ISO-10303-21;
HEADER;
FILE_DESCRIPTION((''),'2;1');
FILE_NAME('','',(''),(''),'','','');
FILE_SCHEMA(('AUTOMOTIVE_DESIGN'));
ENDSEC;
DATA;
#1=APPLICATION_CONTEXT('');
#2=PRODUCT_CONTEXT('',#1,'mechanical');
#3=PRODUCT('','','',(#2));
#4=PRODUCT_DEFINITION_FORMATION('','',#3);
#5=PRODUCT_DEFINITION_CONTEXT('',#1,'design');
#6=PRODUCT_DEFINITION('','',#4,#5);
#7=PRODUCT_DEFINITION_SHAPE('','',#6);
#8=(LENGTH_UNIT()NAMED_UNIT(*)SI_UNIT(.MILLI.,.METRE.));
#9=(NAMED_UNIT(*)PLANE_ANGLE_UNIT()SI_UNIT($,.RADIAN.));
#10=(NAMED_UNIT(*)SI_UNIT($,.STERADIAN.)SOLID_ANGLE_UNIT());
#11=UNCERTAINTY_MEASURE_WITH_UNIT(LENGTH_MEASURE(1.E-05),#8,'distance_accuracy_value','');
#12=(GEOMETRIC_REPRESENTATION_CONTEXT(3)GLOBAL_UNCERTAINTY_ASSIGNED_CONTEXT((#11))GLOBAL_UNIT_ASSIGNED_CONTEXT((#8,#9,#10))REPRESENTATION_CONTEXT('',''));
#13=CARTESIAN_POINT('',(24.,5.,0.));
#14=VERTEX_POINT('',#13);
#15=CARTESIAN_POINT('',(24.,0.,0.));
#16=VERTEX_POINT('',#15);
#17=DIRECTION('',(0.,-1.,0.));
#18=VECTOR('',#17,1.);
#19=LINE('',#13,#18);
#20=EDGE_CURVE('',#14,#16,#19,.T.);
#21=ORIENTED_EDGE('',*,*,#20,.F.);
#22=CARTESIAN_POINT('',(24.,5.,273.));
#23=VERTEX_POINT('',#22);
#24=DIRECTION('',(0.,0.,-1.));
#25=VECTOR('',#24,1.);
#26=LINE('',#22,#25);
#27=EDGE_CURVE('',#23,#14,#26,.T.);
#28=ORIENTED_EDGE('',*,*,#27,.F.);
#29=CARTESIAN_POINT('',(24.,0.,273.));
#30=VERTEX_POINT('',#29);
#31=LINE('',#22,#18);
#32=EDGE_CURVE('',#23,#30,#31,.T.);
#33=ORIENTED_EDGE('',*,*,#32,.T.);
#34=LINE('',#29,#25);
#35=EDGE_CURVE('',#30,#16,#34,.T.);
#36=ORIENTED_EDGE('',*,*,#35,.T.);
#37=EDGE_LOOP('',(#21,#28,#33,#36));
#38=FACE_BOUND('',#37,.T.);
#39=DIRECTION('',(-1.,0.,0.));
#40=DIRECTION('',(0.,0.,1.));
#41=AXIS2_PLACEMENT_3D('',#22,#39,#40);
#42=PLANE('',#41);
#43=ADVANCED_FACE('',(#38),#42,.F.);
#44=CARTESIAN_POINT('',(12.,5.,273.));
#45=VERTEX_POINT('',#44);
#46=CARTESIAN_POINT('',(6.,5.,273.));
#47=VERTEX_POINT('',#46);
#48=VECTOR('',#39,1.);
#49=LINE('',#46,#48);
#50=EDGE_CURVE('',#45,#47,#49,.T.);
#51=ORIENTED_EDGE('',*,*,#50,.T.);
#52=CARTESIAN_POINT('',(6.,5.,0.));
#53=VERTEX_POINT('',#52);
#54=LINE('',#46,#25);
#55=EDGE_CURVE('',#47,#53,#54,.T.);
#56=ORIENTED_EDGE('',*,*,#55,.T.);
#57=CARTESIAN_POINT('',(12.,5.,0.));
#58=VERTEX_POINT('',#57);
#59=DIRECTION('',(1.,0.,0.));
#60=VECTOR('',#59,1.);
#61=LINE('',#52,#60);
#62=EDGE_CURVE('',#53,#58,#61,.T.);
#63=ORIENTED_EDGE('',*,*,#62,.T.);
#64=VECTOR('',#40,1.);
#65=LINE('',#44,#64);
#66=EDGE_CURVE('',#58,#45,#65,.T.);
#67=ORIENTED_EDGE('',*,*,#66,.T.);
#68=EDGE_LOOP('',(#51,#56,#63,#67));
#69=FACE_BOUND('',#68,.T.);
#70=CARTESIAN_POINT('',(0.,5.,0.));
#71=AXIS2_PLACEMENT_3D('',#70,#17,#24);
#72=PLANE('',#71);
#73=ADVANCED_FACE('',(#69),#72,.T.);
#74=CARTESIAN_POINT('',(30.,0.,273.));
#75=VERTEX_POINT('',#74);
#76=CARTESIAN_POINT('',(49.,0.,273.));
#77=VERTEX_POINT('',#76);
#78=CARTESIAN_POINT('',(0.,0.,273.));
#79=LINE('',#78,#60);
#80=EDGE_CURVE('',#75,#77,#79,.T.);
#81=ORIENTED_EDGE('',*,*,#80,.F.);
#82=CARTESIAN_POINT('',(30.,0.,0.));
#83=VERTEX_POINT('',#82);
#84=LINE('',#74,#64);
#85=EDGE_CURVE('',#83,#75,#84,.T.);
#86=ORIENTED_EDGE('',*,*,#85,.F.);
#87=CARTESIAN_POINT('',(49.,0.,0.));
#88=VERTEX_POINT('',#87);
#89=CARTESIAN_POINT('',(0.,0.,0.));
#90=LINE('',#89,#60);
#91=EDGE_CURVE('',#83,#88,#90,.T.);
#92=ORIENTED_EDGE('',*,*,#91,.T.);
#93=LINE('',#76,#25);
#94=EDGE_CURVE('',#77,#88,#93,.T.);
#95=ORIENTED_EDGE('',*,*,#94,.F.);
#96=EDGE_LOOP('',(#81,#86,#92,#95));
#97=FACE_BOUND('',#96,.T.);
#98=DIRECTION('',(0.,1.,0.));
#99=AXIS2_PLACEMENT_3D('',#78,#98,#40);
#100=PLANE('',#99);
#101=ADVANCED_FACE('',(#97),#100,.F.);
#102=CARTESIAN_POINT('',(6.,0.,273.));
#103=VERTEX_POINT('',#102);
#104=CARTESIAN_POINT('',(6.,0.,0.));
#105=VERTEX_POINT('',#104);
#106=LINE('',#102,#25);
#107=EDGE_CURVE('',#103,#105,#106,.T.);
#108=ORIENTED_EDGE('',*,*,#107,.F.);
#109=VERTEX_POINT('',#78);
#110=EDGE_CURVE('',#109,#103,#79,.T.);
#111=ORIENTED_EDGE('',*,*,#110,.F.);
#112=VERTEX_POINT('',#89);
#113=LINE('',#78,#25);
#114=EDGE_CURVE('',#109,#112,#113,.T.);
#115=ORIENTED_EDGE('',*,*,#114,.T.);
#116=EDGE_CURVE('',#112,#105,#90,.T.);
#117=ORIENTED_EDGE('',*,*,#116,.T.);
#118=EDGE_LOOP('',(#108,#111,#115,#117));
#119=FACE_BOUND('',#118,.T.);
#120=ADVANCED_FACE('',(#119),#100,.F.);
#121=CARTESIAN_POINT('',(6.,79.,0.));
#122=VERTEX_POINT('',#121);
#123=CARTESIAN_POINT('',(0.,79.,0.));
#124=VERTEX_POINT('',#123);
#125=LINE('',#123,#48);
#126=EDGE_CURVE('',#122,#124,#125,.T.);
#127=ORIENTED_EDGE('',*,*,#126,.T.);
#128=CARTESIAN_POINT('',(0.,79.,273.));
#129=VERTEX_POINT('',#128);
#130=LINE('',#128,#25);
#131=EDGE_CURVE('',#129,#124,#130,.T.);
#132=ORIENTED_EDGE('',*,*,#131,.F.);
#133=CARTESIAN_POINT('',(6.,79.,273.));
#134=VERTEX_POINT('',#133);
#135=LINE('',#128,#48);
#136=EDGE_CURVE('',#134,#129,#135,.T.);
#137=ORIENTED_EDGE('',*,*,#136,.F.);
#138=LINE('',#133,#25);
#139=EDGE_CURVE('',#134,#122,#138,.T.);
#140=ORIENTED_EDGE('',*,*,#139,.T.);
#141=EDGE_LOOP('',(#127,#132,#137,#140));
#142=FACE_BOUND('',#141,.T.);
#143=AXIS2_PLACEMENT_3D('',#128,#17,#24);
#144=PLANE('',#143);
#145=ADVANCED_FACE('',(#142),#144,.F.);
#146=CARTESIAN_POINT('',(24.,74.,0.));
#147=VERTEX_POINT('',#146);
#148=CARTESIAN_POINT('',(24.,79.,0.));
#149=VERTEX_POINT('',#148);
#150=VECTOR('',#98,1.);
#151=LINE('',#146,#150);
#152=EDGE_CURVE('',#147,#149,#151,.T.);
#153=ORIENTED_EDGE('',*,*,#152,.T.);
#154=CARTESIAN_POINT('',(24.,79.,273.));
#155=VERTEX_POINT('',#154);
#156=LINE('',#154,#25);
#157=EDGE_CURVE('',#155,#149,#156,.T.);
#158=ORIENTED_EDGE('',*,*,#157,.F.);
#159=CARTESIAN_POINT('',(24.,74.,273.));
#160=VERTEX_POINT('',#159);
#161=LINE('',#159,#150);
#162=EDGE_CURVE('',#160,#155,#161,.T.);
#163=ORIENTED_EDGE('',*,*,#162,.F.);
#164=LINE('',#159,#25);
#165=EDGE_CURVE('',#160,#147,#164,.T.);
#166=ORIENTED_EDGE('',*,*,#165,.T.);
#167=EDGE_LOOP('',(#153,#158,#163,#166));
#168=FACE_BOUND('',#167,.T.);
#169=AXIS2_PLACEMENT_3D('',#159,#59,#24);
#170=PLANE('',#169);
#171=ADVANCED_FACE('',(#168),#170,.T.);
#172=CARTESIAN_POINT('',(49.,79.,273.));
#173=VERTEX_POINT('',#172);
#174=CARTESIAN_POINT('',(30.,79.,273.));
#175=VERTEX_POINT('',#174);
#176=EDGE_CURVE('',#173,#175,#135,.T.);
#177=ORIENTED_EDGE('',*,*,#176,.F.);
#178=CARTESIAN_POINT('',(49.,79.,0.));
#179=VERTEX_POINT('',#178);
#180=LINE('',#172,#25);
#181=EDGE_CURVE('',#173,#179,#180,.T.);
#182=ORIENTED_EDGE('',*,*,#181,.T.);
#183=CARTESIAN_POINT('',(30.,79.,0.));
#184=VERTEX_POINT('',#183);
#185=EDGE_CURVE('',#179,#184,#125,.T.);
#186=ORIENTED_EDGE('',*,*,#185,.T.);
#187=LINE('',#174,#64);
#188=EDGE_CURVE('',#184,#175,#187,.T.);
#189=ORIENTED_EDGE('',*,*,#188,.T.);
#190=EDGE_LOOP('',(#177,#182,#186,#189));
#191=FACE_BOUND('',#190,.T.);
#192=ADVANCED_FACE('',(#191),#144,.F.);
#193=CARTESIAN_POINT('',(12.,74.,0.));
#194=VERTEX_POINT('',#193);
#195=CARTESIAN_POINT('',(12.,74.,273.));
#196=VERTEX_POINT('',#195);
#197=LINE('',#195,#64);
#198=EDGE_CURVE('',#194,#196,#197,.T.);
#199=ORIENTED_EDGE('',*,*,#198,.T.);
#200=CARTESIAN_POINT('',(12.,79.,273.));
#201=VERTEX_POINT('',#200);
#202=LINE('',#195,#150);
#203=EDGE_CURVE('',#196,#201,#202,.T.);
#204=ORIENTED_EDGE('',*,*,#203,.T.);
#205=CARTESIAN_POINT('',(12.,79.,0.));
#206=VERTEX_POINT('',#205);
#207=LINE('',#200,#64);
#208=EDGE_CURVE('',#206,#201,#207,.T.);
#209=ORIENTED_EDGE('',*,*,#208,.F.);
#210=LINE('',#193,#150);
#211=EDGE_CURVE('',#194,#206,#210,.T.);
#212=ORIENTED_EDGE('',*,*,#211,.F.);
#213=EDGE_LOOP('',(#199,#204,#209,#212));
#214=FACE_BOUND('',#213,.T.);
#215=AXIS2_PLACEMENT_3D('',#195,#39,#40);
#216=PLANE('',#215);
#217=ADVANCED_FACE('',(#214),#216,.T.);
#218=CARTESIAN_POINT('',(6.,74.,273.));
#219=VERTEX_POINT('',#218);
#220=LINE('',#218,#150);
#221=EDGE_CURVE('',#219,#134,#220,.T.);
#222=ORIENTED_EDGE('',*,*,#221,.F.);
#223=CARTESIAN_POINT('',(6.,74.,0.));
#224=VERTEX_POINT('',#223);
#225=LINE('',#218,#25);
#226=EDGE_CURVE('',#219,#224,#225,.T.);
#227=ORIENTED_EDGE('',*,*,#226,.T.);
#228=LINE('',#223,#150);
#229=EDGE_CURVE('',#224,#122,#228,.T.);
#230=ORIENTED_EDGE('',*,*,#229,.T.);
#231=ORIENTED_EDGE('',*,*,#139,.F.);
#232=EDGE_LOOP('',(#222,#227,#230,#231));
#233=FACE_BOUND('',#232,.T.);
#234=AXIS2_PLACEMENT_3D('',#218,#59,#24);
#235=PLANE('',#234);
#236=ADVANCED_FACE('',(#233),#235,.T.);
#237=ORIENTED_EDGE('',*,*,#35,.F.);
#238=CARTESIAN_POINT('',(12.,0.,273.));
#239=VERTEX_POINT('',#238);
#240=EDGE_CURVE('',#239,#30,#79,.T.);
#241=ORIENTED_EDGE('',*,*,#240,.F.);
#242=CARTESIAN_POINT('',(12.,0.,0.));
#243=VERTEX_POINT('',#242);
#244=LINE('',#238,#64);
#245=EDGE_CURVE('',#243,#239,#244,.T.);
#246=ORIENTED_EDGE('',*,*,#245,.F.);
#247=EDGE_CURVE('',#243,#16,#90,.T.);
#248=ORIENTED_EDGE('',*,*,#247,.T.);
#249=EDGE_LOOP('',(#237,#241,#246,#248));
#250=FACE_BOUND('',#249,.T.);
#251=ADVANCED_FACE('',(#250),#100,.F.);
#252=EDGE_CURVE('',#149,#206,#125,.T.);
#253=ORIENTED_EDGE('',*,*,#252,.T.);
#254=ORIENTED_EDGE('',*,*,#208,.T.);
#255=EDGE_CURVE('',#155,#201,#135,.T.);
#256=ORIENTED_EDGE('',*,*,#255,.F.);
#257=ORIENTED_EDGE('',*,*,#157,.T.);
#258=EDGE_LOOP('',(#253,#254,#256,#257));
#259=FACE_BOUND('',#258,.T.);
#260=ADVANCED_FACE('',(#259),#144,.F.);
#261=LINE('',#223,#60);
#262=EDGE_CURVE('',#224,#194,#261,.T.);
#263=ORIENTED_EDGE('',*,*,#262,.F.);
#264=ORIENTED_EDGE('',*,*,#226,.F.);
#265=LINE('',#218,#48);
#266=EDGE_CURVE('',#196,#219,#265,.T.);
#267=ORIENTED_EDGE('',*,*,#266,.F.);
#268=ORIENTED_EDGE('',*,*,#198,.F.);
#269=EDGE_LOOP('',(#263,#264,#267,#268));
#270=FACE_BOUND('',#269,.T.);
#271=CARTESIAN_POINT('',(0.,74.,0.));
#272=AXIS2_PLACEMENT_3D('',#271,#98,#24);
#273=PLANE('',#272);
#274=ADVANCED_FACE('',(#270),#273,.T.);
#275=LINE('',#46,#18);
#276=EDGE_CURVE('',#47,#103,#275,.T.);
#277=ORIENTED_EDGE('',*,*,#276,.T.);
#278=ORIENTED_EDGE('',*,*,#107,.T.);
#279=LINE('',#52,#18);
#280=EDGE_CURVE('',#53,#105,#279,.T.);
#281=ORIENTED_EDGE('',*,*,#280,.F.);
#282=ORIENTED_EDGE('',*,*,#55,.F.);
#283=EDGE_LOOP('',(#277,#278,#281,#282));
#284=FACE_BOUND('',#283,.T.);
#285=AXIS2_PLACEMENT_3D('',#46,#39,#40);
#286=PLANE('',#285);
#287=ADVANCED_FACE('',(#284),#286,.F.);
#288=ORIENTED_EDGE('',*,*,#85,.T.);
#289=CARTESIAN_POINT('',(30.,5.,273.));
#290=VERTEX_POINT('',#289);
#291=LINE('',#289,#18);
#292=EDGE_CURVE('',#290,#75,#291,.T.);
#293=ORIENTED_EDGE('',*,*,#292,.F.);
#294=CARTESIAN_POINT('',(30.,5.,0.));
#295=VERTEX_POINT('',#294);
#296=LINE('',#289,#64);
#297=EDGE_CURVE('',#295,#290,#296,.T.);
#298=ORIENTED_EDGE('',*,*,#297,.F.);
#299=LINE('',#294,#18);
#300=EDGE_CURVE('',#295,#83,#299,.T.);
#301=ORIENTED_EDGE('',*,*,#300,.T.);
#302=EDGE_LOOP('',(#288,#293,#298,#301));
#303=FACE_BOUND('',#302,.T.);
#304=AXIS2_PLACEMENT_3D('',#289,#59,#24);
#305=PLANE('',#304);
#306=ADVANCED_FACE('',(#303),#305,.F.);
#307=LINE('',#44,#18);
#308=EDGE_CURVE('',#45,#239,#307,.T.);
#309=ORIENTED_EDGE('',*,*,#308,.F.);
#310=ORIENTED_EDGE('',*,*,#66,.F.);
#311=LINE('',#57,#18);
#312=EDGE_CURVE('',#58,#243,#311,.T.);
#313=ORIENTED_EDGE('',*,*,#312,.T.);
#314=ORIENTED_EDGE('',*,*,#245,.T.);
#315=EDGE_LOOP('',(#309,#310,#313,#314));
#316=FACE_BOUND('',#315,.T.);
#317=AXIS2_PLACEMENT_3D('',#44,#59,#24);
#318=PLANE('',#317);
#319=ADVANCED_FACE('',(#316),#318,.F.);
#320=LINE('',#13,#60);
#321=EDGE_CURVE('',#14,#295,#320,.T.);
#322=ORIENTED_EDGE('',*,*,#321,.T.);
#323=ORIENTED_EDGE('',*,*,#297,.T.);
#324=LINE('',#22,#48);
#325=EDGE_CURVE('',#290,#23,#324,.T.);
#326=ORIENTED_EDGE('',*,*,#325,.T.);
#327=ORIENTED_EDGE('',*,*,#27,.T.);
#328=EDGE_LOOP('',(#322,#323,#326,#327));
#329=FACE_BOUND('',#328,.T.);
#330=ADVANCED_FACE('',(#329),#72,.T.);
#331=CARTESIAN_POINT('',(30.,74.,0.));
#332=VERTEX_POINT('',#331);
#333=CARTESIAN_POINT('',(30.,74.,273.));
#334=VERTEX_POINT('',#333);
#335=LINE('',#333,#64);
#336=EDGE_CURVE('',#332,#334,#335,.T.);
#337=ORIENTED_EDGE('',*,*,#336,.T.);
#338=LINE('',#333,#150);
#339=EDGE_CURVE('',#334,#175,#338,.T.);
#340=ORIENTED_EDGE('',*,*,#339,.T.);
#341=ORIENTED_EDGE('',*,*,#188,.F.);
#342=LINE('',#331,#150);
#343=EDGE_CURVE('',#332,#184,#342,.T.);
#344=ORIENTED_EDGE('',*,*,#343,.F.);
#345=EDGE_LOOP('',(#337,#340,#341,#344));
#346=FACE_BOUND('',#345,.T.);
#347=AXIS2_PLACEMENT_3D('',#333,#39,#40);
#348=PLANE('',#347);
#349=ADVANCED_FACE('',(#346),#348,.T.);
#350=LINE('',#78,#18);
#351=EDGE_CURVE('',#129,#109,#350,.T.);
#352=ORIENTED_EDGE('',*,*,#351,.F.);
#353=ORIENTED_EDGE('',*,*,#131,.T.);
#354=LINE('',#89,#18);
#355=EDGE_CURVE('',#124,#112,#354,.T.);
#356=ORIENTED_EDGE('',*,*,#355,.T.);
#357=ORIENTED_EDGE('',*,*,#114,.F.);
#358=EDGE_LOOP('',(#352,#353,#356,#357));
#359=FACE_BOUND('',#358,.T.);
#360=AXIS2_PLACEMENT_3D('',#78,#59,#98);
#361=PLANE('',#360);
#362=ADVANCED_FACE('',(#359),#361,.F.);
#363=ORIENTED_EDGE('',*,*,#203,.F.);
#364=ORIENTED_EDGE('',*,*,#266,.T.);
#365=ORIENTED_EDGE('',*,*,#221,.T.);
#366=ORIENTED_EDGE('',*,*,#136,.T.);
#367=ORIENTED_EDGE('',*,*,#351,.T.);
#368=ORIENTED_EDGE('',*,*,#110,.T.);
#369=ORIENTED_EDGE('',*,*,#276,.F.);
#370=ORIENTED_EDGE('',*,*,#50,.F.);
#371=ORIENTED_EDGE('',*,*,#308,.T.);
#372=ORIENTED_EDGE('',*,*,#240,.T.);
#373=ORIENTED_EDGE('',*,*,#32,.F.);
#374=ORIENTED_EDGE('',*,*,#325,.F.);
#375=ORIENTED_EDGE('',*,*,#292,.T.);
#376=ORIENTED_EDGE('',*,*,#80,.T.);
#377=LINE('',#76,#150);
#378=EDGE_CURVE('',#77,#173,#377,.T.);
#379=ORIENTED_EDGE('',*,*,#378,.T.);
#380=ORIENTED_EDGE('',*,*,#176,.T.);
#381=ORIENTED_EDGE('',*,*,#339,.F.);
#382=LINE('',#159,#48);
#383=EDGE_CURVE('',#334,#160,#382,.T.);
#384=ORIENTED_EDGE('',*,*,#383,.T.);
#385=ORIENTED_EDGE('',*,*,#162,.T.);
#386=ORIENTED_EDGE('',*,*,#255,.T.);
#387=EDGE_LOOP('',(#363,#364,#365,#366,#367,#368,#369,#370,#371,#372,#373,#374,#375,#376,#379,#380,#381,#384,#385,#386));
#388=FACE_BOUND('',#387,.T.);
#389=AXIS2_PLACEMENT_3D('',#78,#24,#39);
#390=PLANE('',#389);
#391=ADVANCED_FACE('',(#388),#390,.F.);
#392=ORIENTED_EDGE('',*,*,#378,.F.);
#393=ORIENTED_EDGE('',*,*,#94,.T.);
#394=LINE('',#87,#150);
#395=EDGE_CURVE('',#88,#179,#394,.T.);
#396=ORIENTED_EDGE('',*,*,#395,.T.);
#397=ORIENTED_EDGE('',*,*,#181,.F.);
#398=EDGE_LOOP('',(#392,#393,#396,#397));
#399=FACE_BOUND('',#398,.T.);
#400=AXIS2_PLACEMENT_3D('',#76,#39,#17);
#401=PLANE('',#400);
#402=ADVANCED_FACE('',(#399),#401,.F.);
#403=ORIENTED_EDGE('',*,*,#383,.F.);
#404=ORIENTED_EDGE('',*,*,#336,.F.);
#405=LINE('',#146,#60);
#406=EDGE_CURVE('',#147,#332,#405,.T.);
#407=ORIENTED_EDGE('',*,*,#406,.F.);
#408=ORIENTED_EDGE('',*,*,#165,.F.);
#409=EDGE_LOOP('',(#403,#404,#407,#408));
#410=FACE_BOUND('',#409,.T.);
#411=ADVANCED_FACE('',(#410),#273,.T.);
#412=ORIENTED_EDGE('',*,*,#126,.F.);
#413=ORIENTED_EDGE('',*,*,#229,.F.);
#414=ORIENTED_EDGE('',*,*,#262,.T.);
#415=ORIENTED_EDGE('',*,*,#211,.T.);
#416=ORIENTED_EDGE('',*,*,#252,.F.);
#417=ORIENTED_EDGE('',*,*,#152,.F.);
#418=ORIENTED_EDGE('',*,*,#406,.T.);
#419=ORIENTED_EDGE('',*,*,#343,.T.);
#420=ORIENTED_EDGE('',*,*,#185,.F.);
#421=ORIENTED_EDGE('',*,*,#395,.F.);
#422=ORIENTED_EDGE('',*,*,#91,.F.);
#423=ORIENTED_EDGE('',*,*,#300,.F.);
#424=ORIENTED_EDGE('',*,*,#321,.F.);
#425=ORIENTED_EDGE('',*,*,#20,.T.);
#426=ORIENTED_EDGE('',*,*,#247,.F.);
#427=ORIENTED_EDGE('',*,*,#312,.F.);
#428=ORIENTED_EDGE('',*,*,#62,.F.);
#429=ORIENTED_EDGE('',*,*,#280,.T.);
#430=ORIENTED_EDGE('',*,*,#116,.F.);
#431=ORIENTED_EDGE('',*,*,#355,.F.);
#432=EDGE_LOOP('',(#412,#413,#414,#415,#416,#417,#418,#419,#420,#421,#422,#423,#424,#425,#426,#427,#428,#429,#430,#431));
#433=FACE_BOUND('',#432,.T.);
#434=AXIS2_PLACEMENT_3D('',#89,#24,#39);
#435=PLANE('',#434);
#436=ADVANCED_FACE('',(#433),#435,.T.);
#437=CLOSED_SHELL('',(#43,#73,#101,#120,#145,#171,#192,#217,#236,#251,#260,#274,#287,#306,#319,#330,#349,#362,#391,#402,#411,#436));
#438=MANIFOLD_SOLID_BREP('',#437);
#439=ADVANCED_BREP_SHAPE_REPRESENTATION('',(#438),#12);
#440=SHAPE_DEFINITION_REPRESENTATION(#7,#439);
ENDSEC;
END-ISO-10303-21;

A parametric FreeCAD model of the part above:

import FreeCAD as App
import Part
import Sketcher

V = App.Vector
Q = App.Units.Quantity


def add_polygon(sketch, points):
    """Adds a closed chain of lines whose ends are joined by coincident constraints."""
    first, n = sketch.GeometryCount, len(points)
    for a, b in zip(points, points[1:] + points[:1]):
        sketch.addGeometry(Part.LineSegment(App.Vector(*a, 0), App.Vector(*b, 0)), False)
    for i in range(n):
        sketch.addConstraint(Sketcher.Constraint("Coincident", first + i, 2, first + (i + 1) % n, 1))

doc = App.newDocument("Part")
params = doc.addObject("Spreadsheet::Sheet", "Params")
for row, (alias, value) in enumerate([
    ("sketch1_width", "49 mm"),
    ("sketch1_height", "79 mm"),
    ("pad1_length", "273 mm"),
    ("sketch2_width", "6 mm"),
    ("sketch2_height", "273 mm"),
    ("pocket1_length", "5 mm"),
], start=1):
    params.set(f"A{row}", alias)
    params.set(f"B{row}", "=" + value)
    params.setAlias(f"B{row}", alias)

body = doc.addObject("PartDesign::Body", "Body")

# Sketch on XY plane
sketch1 = body.newObject("Sketcher::SketchObject", "Sketch")
sketch1.AttachmentSupport = (doc.getObject("XY_Plane"), [""])
sketch1.MapMode = "FlatFace"
add_polygon(sketch1, [(0, 79), (0, 0), (49, 0), (49, 79)])  # lines 0-3
sketch1.addConstraint([
    Sketcher.Constraint("Vertical", 0),
    Sketcher.Constraint("Horizontal", 1),
    Sketcher.Constraint("Vertical", 2),
    Sketcher.Constraint("Horizontal", 3),
    Sketcher.Constraint("Coincident", 0, 2, -1, 1),
    Sketcher.Constraint("DistanceX", 1, 1, 1, 2, Q("49 mm")),
    Sketcher.Constraint("DistanceY", 0, 2, 0, 1, Q("79 mm")),
])
sketch1.setExpression("Constraints[9]", "Params.sketch1_width")
sketch1.setExpression("Constraints[10]", "Params.sketch1_height")
pad1 = body.newObject("PartDesign::Pad", "Pad")
pad1.Profile = sketch1
pad1.setExpression("Length", "Params.pad1_length")

# Sketch on XZ plane
sketch2 = body.newObject("Sketcher::SketchObject", "Sketch001")
sketch2.AttachmentSupport = (doc.getObject("XZ_Plane"), [""])
sketch2.MapMode = "FlatFace"
add_polygon(sketch2, [(6, 273), (6, 0), (12, 0), (12, 273)])  # lines 0-3
add_polygon(sketch2, [(24, 273), (24, 0), (30, 0), (30, 273)])  # lines 4-7
sketch2.addConstraint([
    Sketcher.Constraint("Vertical", 0),
    Sketcher.Constraint("Horizontal", 1),
    Sketcher.Constraint("Vertical", 2),
    Sketcher.Constraint("Horizontal", 3),
    Sketcher.Constraint("Vertical", 4),
    Sketcher.Constraint("Horizontal", 5),
    Sketcher.Constraint("Vertical", 6),
    Sketcher.Constraint("Horizontal", 7),
    Sketcher.Constraint("PointOnObject", 0, 2, -1),
    Sketcher.Constraint("PointOnObject", 4, 2, -1),
    Sketcher.Constraint("Horizontal", 3, 2, 6, 2),
    Sketcher.Constraint("Equal", 3, 5),
    Sketcher.Constraint("DistanceX", 1, 1, 1, 2, Q("6 mm")),
    Sketcher.Constraint("DistanceY", 0, 2, 0, 1, Q("273 mm")),
    Sketcher.Constraint("DistanceX", -1, 1, 0, 2, Q("6 mm")),
    Sketcher.Constraint("DistanceX", -1, 1, 4, 2, Q("24 mm")),
])
sketch2.setExpression("Constraints[20]", "Params.sketch2_width")
sketch2.setExpression("Constraints[21]", "Params.sketch2_height")
pocket1 = body.newObject("PartDesign::Pocket", "Pocket")
pocket1.Profile = sketch2
pocket1.setExpression("Length", "Params.pocket1_length")
doc.recompute()

datumplane = body.newObject("PartDesign::Plane", "DatumPlane")
datumplane.AttachmentSupport = (doc.getObject("XZ_Plane"), [""])
datumplane.MapMode = "FlatFace"
datumplane.AttachmentOffset = App.Placement(V(0, 0, -39.5), App.Rotation())
mirrored = body.newObject("PartDesign::Mirrored", "Mirrored")
mirrored.Originals = [pocket1]
mirrored.MirrorPlane = (datumplane, [""])
body.Tip = mirrored

doc.recompute()
